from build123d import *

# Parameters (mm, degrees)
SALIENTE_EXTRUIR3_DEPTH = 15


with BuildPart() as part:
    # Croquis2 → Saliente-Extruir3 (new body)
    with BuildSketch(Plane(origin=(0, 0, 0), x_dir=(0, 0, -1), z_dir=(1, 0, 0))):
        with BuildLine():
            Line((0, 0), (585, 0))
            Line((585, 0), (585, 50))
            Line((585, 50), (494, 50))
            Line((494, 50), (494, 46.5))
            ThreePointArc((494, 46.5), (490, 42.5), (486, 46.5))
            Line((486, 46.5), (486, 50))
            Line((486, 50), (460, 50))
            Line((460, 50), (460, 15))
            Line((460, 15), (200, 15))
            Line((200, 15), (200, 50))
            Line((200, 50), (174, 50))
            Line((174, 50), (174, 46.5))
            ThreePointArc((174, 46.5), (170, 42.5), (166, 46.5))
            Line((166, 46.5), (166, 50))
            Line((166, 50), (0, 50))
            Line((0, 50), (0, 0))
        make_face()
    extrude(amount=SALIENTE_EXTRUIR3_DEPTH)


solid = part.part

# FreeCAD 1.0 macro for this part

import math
import FreeCAD as App
import Part
import Sketcher

V = App.Vector
Q = App.Units.Quantity

doc = App.newDocument("Part")
body = doc.addObject("PartDesign::Body", "Body")

sketch1 = doc.addObject("Sketcher::SketchObject", "Sketch")
body.addObject(sketch1)
sketch1.AttachmentSupport = (doc.YZ_Plane, [""])
sketch1.MapMode = "FlatFace"
sketch1.addGeometry(Part.LineSegment(V(0, 0, 0), V(0, -585, 0)), False)
sketch1.addGeometry(Part.LineSegment(V(0, -585, 0), V(50, -585, 0)), False)
sketch1.addGeometry(Part.LineSegment(V(50, -585, 0), V(50, -494, 0)), False)
sketch1.addGeometry(Part.LineSegment(V(50, -494, 0), V(46.5, -494, 0)), False)
sketch1.addGeometry(Part.ArcOfCircle(Part.Circle(V(46.5, -490, 0), V(0, 0, 1), 4), math.radians(90), math.radians(270)), False)
sketch1.addGeometry(Part.LineSegment(V(46.5, -486, 0), V(50, -486, 0)), False)
sketch1.addGeometry(Part.LineSegment(V(50, -486, 0), V(50, -460, 0)), False)
sketch1.addGeometry(Part.LineSegment(V(50, -460, 0), V(15, -460, 0)), False)
sketch1.addGeometry(Part.LineSegment(V(15, -460, 0), V(15, -200, 0)), False)
sketch1.addGeometry(Part.LineSegment(V(15, -200, 0), V(50, -200, 0)), False)
sketch1.addGeometry(Part.LineSegment(V(50, -200, 0), V(50, -174, 0)), False)
sketch1.addGeometry(Part.LineSegment(V(50, -174, 0), V(46.5, -174, 0)), False)
sketch1.addGeometry(Part.ArcOfCircle(Part.Circle(V(46.5, -170, 0), V(0, 0, 1), 4), math.radians(90), math.radians(270)), False)
sketch1.addGeometry(Part.LineSegment(V(46.5, -166, 0), V(50, -166, 0)), False)
sketch1.addGeometry(Part.LineSegment(V(50, -166, 0), V(50, 0, 0)), False)
sketch1.addGeometry(Part.LineSegment(V(50, 0, 0), V(0, 0, 0)), False)
sketch1.addConstraint(Sketcher.Constraint("Coincident", 0, 2, 1, 1))
sketch1.addConstraint(Sketcher.Constraint("Coincident", 1, 2, 2, 1))
sketch1.addConstraint(Sketcher.Constraint("Coincident", 2, 2, 3, 1))
sketch1.addConstraint(Sketcher.Constraint("Tangent", 3, 2, 4, 2))
sketch1.addConstraint(Sketcher.Constraint("Tangent", 4, 1, 5, 1))
sketch1.addConstraint(Sketcher.Constraint("Coincident", 5, 2, 6, 1))
sketch1.addConstraint(Sketcher.Constraint("Coincident", 6, 2, 7, 1))
sketch1.addConstraint(Sketcher.Constraint("Coincident", 7, 2, 8, 1))
sketch1.addConstraint(Sketcher.Constraint("Coincident", 8, 2, 9, 1))
sketch1.addConstraint(Sketcher.Constraint("Coincident", 9, 2, 10, 1))
sketch1.addConstraint(Sketcher.Constraint("Coincident", 10, 2, 11, 1))
sketch1.addConstraint(Sketcher.Constraint("Tangent", 11, 2, 12, 2))
sketch1.addConstraint(Sketcher.Constraint("Tangent", 12, 1, 13, 1))
sketch1.addConstraint(Sketcher.Constraint("Coincident", 13, 2, 14, 1))
sketch1.addConstraint(Sketcher.Constraint("Coincident", 14, 2, 15, 1))
sketch1.addConstraint(Sketcher.Constraint("Coincident", 15, 2, 0, 1))
sketch1.addConstraint(Sketcher.Constraint("Vertical", 0))
sketch1.addConstraint(Sketcher.Constraint("Horizontal", 1))
sketch1.addConstraint(Sketcher.Constraint("Vertical", 2))
sketch1.addConstraint(Sketcher.Constraint("Horizontal", 3))
sketch1.addConstraint(Sketcher.Constraint("Horizontal", 5))
sketch1.addConstraint(Sketcher.Constraint("Vertical", 6))
sketch1.addConstraint(Sketcher.Constraint("Horizontal", 7))
sketch1.addConstraint(Sketcher.Constraint("Vertical", 8))
sketch1.addConstraint(Sketcher.Constraint("Horizontal", 9))
sketch1.addConstraint(Sketcher.Constraint("Vertical", 10))
sketch1.addConstraint(Sketcher.Constraint("Horizontal", 11))
sketch1.addConstraint(Sketcher.Constraint("Horizontal", 13))
sketch1.addConstraint(Sketcher.Constraint("Vertical", 14))
sketch1.addConstraint(Sketcher.Constraint("Horizontal", 15))
sketch1.addConstraint(Sketcher.Constraint("Coincident", 15, 2, -1, 1))
sketch1.addConstraint(Sketcher.Constraint("Equal", 4, 12))
sketch1.addConstraint(Sketcher.Constraint("Vertical", 4, 3, 12, 3))
sketch1.addConstraint(Sketcher.Constraint("Vertical", 2, 2, 5, 2))
sketch1.addConstraint(Sketcher.Constraint("Vertical", 6, 2, 9, 2))
sketch1.addConstraint(Sketcher.Constraint("Vertical", 10, 2, 13, 2))
sketch1.addConstraint(Sketcher.Constraint("Equal", 6, 10))
sketch1.addConstraint(Sketcher.Constraint("Radius", 4, Q("4 mm")))
sketch1.addConstraint(Sketcher.Constraint("DistanceX", 1, 1, 1, 2, Q("50 mm")))
sketch1.addConstraint(Sketcher.Constraint("DistanceX", 7, 2, 7, 1, Q("35 mm")))
sketch1.addConstraint(Sketcher.Constraint("DistanceY", 0, 2, 0, 1, Q("585 mm")))
sketch1.addConstraint(Sketcher.Constraint("DistanceY", 2, 1, 2, 2, Q("91 mm")))
sketch1.addConstraint(Sketcher.Constraint("DistanceY", 6, 1, 6, 2, Q("26 mm")))
sketch1.addConstraint(Sketcher.Constraint("DistanceY", 8, 1, 8, 2, Q("260 mm")))
sketch1.addConstraint(Sketcher.Constraint("DistanceX", 3, 2, 3, 1, Q("3.5 mm")))
pad1 = doc.addObject("PartDesign::Pad", "Pad")
body.addObject(pad1)
pad1.Profile = sketch1
pad1.Length = 15

doc.recompute()
